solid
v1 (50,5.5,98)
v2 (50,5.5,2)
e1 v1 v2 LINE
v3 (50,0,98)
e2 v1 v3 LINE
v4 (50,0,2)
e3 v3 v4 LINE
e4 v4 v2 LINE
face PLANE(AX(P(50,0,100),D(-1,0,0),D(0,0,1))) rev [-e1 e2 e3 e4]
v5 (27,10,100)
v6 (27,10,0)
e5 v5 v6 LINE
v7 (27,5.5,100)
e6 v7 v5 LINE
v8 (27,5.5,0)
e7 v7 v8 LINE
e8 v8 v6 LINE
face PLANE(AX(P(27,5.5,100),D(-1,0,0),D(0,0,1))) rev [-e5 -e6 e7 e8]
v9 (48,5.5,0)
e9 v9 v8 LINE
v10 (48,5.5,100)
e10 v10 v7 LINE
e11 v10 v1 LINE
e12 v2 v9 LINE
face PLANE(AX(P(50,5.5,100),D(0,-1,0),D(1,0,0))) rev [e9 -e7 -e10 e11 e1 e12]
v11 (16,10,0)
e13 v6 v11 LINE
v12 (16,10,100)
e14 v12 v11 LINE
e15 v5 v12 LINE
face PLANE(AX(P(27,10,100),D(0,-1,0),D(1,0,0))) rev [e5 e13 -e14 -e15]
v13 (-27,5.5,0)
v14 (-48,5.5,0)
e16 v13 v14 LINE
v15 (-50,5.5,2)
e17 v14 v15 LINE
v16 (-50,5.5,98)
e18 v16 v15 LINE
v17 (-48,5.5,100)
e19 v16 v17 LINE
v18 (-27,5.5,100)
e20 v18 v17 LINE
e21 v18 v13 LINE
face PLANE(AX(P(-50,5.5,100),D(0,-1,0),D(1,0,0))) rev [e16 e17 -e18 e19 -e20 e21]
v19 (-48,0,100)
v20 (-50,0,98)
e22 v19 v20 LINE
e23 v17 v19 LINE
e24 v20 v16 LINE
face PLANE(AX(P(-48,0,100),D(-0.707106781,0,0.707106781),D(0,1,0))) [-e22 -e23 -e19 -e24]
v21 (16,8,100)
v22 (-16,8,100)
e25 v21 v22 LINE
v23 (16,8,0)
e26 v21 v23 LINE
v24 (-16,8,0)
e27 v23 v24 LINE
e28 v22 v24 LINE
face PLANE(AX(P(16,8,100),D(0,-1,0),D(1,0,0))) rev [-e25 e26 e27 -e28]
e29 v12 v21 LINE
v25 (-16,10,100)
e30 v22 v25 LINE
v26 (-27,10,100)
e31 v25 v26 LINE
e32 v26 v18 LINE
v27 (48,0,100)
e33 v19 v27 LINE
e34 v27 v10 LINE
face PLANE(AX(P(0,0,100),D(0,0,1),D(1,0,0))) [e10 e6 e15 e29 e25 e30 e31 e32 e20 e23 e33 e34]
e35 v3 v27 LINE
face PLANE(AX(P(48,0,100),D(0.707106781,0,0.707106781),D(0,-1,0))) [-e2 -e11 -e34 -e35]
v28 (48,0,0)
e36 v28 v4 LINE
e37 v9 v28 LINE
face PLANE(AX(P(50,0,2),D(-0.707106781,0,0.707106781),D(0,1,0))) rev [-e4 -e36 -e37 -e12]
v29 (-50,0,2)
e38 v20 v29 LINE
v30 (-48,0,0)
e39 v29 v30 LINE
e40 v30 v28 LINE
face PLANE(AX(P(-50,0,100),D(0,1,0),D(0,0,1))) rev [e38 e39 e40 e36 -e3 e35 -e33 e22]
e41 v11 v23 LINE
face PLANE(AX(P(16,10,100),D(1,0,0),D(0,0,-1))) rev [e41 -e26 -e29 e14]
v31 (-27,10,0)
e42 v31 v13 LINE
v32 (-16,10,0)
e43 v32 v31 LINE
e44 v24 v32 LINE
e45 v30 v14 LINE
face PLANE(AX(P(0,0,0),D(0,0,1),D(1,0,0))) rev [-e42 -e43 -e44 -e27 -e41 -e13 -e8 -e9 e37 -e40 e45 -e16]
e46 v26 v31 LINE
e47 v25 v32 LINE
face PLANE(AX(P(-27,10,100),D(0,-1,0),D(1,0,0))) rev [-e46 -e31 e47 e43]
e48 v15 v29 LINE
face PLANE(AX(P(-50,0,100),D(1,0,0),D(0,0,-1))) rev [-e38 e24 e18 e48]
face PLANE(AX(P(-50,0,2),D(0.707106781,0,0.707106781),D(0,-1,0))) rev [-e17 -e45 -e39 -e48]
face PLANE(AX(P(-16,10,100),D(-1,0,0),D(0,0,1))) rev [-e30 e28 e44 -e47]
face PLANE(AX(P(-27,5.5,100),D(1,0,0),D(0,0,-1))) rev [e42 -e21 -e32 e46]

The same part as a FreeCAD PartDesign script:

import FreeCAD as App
import Part
import Sketcher
from FreeCAD import Vector
Q = App.Units.Quantity


def edges_at(feature, points):
    """Names of the edges that pass closest to the given points."""
    edges = feature.Shape.Edges
    near = lambda p: min(range(len(edges)), key=lambda i: edges[i].distToShape(Part.Vertex(*p))[0])
    return sorted({f"Edge{near(p) + 1}" for p in points})

doc = App.newDocument("Part")
params = doc.addObject("Spreadsheet::Sheet", "Params")
for row, (alias, value) in enumerate([
    ("sketch1_width", "100 mm"),
    ("sketch1_width2", "23 mm"),
    ("sketch1_width3", "11 mm"),
    ("sketch1_height", "2 mm"),
    ("sketch1_height2", "5.5 mm"),
    ("pad1_length", "100 mm"),
    ("chamfer_size", "2 mm"),
], start=1):
    params.set(f"A{row}", alias)
    params.set(f"B{row}", "=" + value)
    params.setAlias(f"B{row}", alias)

body = doc.addObject("PartDesign::Body", "Body")

sketch1 = doc.addObject("Sketcher::SketchObject", "Sketch")
body.addObject(sketch1)
sketch1.AttachmentSupport = (doc.XY_Plane, [""])
sketch1.MapMode = "FlatFace"
sketch1.addGeometry([
    Part.LineSegment(Vector(-50, 0, 0), Vector(50, 0, 0)),
    Part.LineSegment(Vector(50, 0, 0), Vector(50, 5.5, 0)),
    Part.LineSegment(Vector(50, 5.5, 0), Vector(27, 5.5, 0)),
    Part.LineSegment(Vector(27, 5.5, 0), Vector(27, 10, 0)),
    Part.LineSegment(Vector(27, 10, 0), Vector(16, 10, 0)),
    Part.LineSegment(Vector(16, 10, 0), Vector(16, 8, 0)),
    Part.LineSegment(Vector(16, 8, 0), Vector(-16, 8, 0)),
    Part.LineSegment(Vector(-16, 8, 0), Vector(-16, 10, 0)),
    Part.LineSegment(Vector(-16, 10, 0), Vector(-27, 10, 0)),
    Part.LineSegment(Vector(-27, 10, 0), Vector(-27, 5.5, 0)),
    Part.LineSegment(Vector(-27, 5.5, 0), Vector(-50, 5.5, 0)),
    Part.LineSegment(Vector(-50, 5.5, 0), Vector(-50, 0, 0)),
], False)
sketch1.addConstraint([
    Sketcher.Constraint("Coincident", 0, 2, 1, 1),
    Sketcher.Constraint("Coincident", 1, 2, 2, 1),
    Sketcher.Constraint("Coincident", 2, 2, 3, 1),
    Sketcher.Constraint("Coincident", 3, 2, 4, 1),
    Sketcher.Constraint("Coincident", 4, 2, 5, 1),
    Sketcher.Constraint("Coincident", 5, 2, 6, 1),
    Sketcher.Constraint("Coincident", 6, 2, 7, 1),
    Sketcher.Constraint("Coincident", 7, 2, 8, 1),
    Sketcher.Constraint("Coincident", 8, 2, 9, 1),
    Sketcher.Constraint("Coincident", 9, 2, 10, 1),
    Sketcher.Constraint("Coincident", 10, 2, 11, 1),
    Sketcher.Constraint("Coincident", 11, 2, 0, 1),
    Sketcher.Constraint("Horizontal", 0),
    Sketcher.Constraint("Vertical", 1),
    Sketcher.Constraint("Horizontal", 2),
    Sketcher.Constraint("Vertical", 3),
    Sketcher.Constraint("Horizontal", 4),
    Sketcher.Constraint("Vertical", 5),
    Sketcher.Constraint("Horizontal", 6),
    Sketcher.Constraint("Vertical", 7),
    Sketcher.Constraint("Horizontal", 8),
    Sketcher.Constraint("Vertical", 9),
    Sketcher.Constraint("Horizontal", 10),
    Sketcher.Constraint("Vertical", 11),
    Sketcher.Constraint("Symmetric", 0, 2, 11, 2, -1, 1),
    Sketcher.Constraint("Symmetric", 4, 2, 7, 2, -2),
    Sketcher.Constraint("Symmetric", 2, 2, 9, 2, -2),
    Sketcher.Constraint("DistanceX", 0, 1, 0, 2, Q("100 mm")),
    Sketcher.Constraint("DistanceX", 2, 2, 2, 1, Q("23 mm")),
    Sketcher.Constraint("DistanceX", 4, 2, 4, 1, Q("11 mm")),
    Sketcher.Constraint("DistanceY", 5, 2, 5, 1, Q("2 mm")),
    Sketcher.Constraint("DistanceY", 1, 1, 1, 2, Q("5.5 mm")),
    Sketcher.Constraint("DistanceY", 3, 1, 3, 2, Q("4.5 mm")),
])
sketch1.setExpression("Constraints[27]", "Params.sketch1_width")
sketch1.setExpression("Constraints[28]", "Params.sketch1_width2")
sketch1.setExpression("Constraints[29]", "Params.sketch1_width3")
sketch1.setExpression("Constraints[30]", "Params.sketch1_height")
sketch1.setExpression("Constraints[31]", "Params.sketch1_height2")
pad1 = doc.addObject("PartDesign::Pad", "Pad")
body.addObject(pad1)
pad1.Profile = sketch1
pad1.setExpression("Length", "Params.pad1_length")
doc.recompute()

chamfer = doc.addObject("PartDesign::Chamfer", "Chamfer")
body.addObject(chamfer)
chamfer.Base = (pad1, edges_at(pad1, [
    (-50, 2.75, 0),
    (50, 2.75, 0),
    (-50, 2.75, 100),
    (50, 2.75, 100),
]))
chamfer.setExpression("Size", "Params.chamfer_size")

doc.recompute()
